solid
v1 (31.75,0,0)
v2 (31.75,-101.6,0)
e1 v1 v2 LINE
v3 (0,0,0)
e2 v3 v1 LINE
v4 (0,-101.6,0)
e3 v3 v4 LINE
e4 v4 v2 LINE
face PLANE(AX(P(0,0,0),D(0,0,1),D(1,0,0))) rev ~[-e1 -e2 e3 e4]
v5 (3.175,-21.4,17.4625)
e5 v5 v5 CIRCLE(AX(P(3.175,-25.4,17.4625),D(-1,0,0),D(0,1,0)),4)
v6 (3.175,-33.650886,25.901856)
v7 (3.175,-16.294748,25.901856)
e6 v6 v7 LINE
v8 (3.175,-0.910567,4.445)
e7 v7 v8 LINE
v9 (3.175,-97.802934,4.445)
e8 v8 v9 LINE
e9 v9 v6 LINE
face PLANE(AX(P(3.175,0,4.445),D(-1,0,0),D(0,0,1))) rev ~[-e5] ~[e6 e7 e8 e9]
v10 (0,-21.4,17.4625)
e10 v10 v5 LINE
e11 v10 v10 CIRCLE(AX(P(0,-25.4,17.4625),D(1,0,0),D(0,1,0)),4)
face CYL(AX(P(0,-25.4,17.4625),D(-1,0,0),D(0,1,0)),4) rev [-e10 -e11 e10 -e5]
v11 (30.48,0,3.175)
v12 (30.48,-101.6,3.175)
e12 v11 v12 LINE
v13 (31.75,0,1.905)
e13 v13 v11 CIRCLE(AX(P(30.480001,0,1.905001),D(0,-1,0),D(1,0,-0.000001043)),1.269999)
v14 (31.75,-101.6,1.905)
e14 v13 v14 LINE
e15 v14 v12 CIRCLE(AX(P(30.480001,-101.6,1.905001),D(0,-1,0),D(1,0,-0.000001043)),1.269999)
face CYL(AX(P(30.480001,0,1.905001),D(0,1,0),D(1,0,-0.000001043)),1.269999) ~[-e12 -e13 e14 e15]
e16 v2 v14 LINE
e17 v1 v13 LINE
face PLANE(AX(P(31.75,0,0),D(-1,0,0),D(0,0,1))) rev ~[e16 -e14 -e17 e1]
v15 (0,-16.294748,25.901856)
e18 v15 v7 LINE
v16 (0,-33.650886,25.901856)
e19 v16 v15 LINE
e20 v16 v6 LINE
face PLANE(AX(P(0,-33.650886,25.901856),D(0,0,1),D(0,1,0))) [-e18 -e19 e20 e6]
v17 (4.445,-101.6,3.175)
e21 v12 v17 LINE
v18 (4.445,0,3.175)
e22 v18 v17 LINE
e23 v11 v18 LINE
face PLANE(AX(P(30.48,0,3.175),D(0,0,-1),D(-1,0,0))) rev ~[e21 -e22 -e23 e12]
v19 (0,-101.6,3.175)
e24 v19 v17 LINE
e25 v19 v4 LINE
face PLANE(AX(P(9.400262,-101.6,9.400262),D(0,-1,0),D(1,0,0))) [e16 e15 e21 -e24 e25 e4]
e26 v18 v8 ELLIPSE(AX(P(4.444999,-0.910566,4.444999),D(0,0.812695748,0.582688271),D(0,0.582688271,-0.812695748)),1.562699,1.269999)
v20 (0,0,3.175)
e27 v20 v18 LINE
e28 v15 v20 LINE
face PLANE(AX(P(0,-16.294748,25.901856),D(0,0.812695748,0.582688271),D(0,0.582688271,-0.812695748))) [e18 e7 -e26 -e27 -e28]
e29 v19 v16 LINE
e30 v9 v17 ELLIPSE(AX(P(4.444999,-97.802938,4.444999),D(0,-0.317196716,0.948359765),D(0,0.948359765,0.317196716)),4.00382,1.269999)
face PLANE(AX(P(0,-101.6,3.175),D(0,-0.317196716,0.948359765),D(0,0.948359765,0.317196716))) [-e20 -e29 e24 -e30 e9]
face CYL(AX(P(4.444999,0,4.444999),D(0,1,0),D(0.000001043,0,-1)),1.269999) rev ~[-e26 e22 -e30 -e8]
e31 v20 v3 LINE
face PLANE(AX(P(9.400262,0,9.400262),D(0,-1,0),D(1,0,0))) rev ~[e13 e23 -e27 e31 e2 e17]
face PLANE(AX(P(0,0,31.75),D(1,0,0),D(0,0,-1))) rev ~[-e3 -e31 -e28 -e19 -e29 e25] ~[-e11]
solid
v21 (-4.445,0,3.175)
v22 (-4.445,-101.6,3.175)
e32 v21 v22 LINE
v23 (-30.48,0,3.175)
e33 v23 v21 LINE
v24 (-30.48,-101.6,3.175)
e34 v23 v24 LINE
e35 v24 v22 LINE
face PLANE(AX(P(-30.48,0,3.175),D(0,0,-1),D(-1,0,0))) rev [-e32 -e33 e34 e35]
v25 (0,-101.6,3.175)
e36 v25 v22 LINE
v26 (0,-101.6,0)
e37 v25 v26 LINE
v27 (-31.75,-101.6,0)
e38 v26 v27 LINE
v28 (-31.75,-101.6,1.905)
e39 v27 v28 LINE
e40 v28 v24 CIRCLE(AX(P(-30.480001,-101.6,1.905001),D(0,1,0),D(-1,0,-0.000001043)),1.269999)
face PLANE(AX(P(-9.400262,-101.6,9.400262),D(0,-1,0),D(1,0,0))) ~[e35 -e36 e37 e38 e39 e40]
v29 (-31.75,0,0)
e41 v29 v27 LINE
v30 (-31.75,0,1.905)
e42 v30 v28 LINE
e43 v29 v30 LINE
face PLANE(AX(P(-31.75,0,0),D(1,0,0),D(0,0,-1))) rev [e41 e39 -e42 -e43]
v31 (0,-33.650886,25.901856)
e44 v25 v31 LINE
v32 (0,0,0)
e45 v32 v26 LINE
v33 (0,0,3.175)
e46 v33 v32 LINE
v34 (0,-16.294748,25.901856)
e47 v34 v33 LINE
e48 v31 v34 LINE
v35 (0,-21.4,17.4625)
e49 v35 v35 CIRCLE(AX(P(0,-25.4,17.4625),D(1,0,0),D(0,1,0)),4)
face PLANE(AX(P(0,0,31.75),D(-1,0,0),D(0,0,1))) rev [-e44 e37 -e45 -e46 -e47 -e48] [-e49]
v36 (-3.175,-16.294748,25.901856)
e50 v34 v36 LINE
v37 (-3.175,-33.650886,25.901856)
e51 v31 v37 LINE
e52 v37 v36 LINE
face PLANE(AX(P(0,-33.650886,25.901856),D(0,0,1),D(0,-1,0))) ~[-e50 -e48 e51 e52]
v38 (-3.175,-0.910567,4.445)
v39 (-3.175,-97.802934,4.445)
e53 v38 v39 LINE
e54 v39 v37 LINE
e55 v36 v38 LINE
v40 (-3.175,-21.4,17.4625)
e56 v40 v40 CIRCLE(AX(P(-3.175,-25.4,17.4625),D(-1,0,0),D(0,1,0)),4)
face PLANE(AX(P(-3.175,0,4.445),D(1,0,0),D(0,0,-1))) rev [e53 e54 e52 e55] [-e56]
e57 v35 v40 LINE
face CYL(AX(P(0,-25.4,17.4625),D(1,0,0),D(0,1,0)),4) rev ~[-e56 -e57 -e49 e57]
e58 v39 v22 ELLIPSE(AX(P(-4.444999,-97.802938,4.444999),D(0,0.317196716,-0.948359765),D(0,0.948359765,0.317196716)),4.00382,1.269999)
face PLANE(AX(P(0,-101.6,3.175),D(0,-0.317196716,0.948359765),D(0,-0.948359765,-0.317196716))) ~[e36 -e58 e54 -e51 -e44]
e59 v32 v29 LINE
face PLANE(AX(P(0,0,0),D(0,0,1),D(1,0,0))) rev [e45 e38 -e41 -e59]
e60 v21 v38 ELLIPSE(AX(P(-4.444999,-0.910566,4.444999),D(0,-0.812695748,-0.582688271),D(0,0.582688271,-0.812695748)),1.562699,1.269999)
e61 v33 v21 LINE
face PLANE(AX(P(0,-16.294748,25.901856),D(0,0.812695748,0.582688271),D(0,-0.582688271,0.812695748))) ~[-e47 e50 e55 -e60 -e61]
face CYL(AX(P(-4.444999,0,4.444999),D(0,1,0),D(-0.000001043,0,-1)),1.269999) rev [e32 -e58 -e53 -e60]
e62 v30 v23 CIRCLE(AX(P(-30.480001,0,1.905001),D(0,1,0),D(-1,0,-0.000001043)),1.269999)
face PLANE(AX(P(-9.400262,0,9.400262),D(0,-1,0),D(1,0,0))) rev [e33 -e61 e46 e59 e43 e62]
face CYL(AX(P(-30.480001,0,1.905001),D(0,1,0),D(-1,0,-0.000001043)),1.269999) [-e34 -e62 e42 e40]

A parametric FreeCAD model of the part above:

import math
import FreeCAD as App
import Part
import Sketcher
Q = App.Units.Quantity

doc = App.newDocument("Part")
body = doc.addObject("PartDesign::Body", "Body")

# Sketch on XZ plane
sketch1 = doc.addObject("Sketcher::SketchObject", "Sketch")
body.addObject(sketch1)
sketch1.AttachmentSupport = (doc.XZ_Plane, [""])
sketch1.MapMode = "FlatFace"
sketch1.addGeometry([
    Part.LineSegment(App.Vector(0, 31.8, 0), App.Vector(0, 0, 0)),  # 0
    Part.LineSegment(App.Vector(0, 0, 0), App.Vector(31.8, 0, 0)),  # 1
    Part.LineSegment(App.Vector(31.8, 0, 0), App.Vector(31.8, 1.9, 0)),  # 2
    Part.ArcOfCircle(Part.Circle(App.Vector(30.5, 1.9, 0), App.Vector(0, 0, 1), 1.3), math.radians(0), math.radians(90)),  # 3
    Part.LineSegment(App.Vector(30.5, 3.2, 0), App.Vector(4.4, 3.2, 0)),  # 4
    Part.ArcOfCircle(Part.Circle(App.Vector(4.4, 4.4, 0), App.Vector(0, 0, 1), 1.3), math.radians(180), math.radians(270)),  # 5
    Part.LineSegment(App.Vector(3.2, 4.4, 0), App.Vector(3.2, 30.5, 0)),  # 6
    Part.ArcOfCircle(Part.Circle(App.Vector(1.9, 30.5, 0), App.Vector(0, 0, 1), 1.3), math.radians(0), math.radians(90)),  # 7
    Part.LineSegment(App.Vector(1.9, 31.8, 0), App.Vector(0, 31.8, 0)),  # 8
], False)
sketch1.addConstraint([
    Sketcher.Constraint("Coincident", 0, 2, 1, 1),
    Sketcher.Constraint("Coincident", 1, 2, 2, 1),
    Sketcher.Constraint("Tangent", 2, 2, 3, 1),
    Sketcher.Constraint("Tangent", 3, 2, 4, 1),
    Sketcher.Constraint("Tangent", 4, 2, 5, 2),
    Sketcher.Constraint("Tangent", 5, 1, 6, 1),
    Sketcher.Constraint("Tangent", 6, 2, 7, 1),
    Sketcher.Constraint("Tangent", 7, 2, 8, 1),
    Sketcher.Constraint("Coincident", 8, 2, 0, 1),
    Sketcher.Constraint("Vertical", 0),
    Sketcher.Constraint("Horizontal", 1),
    Sketcher.Constraint("Vertical", 2),
    Sketcher.Constraint("Horizontal", 4),
    Sketcher.Constraint("Vertical", 6),
    Sketcher.Constraint("Horizontal", 8),
    Sketcher.Constraint("Coincident", 0, 2, -1, 1),
    Sketcher.Constraint("Equal", 3, 5),
    Sketcher.Constraint("Equal", 5, 7),
    Sketcher.Constraint("Equal", 1, 0),
    Sketcher.Constraint("Equal", 8, 2),
    Sketcher.Constraint("Radius", 3, Q("0.0499999 in")),
    Sketcher.Constraint("DistanceX", 1, 1, 1, 2, Q("1.25 in")),
    Sketcher.Constraint("DistanceX", 4, 2, 4, 1, Q("1.025 in")),
])
pad1 = doc.addObject("PartDesign::Pad", "Pad")
body.addObject(pad1)
pad1.Profile = sketch1
pad1.Length = Q("4 in")

# Sketch on YZ plane
sketch2 = doc.addObject("Sketcher::SketchObject", "Sketch001")
body.addObject(sketch2)
sketch2.AttachmentSupport = (doc.YZ_Plane, [""])
sketch2.MapMode = "FlatFace"
sketch2.addGeometry([
    Part.Circle(App.Vector(-25.4, 17.5, 0), App.Vector(0, 0, 1), 4),  # 0
    Part.LineSegment(App.Vector(-101.6, 3.2, 0), App.Vector(-33.7, 25.9, 0)),  # 1
    Part.LineSegment(App.Vector(-33.7, 25.9, 0), App.Vector(-16.3, 25.9, 0)),  # 2
    Part.LineSegment(App.Vector(-16.3, 25.9, 0), App.Vector(0, 3.2, 0)),  # 3
    Part.LineSegment(App.Vector(0, 3.2, 0), App.Vector(0, 31.8, 0)),  # 4
    Part.LineSegment(App.Vector(0, 31.8, 0), App.Vector(-101.6, 31.8, 0)),  # 5
    Part.LineSegment(App.Vector(-101.6, 31.8, 0), App.Vector(-101.6, 3.2, 0)),  # 6
], False)
sketch2.addConstraint([
    Sketcher.Constraint("Coincident", 1, 2, 2, 1),
    Sketcher.Constraint("Coincident", 2, 2, 3, 1),
    Sketcher.Constraint("Coincident", 3, 2, 4, 1),
    Sketcher.Constraint("Coincident", 4, 2, 5, 1),
    Sketcher.Constraint("Coincident", 5, 2, 6, 1),
    Sketcher.Constraint("Coincident", 6, 2, 1, 1),
    Sketcher.Constraint("Horizontal", 2),
    Sketcher.Constraint("Vertical", 4),
    Sketcher.Constraint("Horizontal", 5),
    Sketcher.Constraint("Vertical", 6),
    Sketcher.Constraint("PointOnObject", 3, 2, -2),
    Sketcher.Constraint("Horizontal", 3, 2, 6, 2),
    Sketcher.Constraint("DistanceX", 5, 2, 5, 1, Q("4 in")),
    Sketcher.Constraint("DistanceX", 0, 3, -1, 1, Q("1 in")),
    Sketcher.Constraint("Diameter", 0, 8.0),
    Sketcher.Constraint("DistanceY", 4, 1, 4, 2, Q("1.125 in")),
    Sketcher.Constraint("DistanceY", -1, 1, 4, 2, Q("1.25 in")),
    Sketcher.Constraint("DistanceY", -1, 1, 0, 3, Q("0.6875 in")),
    Sketcher.Constraint("DistanceX", 2, 1, 2, 2, 17.356138),
    Sketcher.Constraint("Distance", 1, 71.64909),
    Sketcher.Constraint("DistanceX", 5, 2, 2, 2, 85.305252),
])
pocket1 = doc.addObject("PartDesign::Pocket", "Pocket")
body.addObject(pocket1)
pocket1.Profile = sketch2
pocket1.Type = "ThroughAll"
pocket1.Reversed = True
body2 = doc.addObject("PartDesign::Body", "Body001")
doc.recompute()

mirroring = doc.addObject("Part::Mirroring", "Mirroring")
mirroring.Source = body
mirroring.Base = App.Vector(0, 0, 0)
mirroring.Normal = App.Vector(1, 0, 0)
body2.BaseFeature = mirroring
doc.recompute()
mirroring.Visibility = False

doc.recompute()
